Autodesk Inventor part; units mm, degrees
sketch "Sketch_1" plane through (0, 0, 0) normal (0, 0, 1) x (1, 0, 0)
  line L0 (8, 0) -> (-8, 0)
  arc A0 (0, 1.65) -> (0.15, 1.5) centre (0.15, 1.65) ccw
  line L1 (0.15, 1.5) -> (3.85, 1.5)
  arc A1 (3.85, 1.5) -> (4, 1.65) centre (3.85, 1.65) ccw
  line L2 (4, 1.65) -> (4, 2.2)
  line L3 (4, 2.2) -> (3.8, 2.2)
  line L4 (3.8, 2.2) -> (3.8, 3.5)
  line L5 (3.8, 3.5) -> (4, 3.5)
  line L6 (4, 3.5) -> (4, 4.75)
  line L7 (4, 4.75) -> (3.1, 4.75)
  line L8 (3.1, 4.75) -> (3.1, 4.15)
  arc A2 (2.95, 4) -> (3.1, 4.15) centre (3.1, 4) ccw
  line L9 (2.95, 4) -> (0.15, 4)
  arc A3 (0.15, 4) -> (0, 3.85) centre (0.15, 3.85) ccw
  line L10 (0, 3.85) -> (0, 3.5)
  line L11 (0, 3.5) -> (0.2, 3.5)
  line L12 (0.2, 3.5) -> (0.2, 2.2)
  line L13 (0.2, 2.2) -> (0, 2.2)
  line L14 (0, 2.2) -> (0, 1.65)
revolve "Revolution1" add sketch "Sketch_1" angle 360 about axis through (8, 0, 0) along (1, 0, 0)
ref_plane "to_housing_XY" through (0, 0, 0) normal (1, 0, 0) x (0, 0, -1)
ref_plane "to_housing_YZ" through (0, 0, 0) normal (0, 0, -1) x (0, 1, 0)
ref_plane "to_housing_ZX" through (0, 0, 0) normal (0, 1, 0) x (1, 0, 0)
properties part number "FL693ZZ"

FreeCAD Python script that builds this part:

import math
import FreeCAD as App
import Part
import Sketcher
Q = App.Units.Quantity

doc = App.newDocument("Part")
params = doc.addObject("Spreadsheet::Sheet", "Params")
for row, (alias, value) in enumerate([
    ("sketch1_radius", "0.15 mm"),
    ("sketch1_width", "3.7 mm"),
    ("sketch1_width2", "0.2 mm"),
    ("sketch1_width3", "0.9 mm"),
    ("sketch1_height", "1.3 mm"),
    ("revolution_angle", "360 deg"),
], start=1):
    params.set(f"A{row}", alias)
    params.set(f"B{row}", "=" + value)
    params.setAlias(f"B{row}", alias)

body = doc.addObject("PartDesign::Body", "Body")

# Sketch on XY plane
sketch1 = doc.addObject("Sketcher::SketchObject", "Sketch")
body.addObject(sketch1)
sketch1.AttachmentSupport = (doc.XY_Plane, [""])
sketch1.MapMode = "FlatFace"
sketch1.addGeometry(Part.LineSegment(App.Vector(0, 2.2, 0), App.Vector(0, 1.65, 0)), False)
sketch1.addGeometry(Part.ArcOfCircle(Part.Circle(App.Vector(0.15, 1.65, 0), App.Vector(0, 0, 1), 0.15), math.radians(180), math.radians(270)), False)
sketch1.addGeometry(Part.LineSegment(App.Vector(0.15, 1.5, 0), App.Vector(3.85, 1.5, 0)), False)
sketch1.addGeometry(Part.ArcOfCircle(Part.Circle(App.Vector(3.85, 1.65, 0), App.Vector(0, 0, 1), 0.15), math.radians(-90), math.radians(0)), False)
sketch1.addGeometry(Part.LineSegment(App.Vector(4, 1.65, 0), App.Vector(4, 2.2, 0)), False)
sketch1.addGeometry(Part.LineSegment(App.Vector(4, 2.2, 0), App.Vector(3.8, 2.2, 0)), False)
sketch1.addGeometry(Part.LineSegment(App.Vector(3.8, 2.2, 0), App.Vector(3.8, 3.5, 0)), False)
sketch1.addGeometry(Part.LineSegment(App.Vector(3.8, 3.5, 0), App.Vector(4, 3.5, 0)), False)
sketch1.addGeometry(Part.LineSegment(App.Vector(4, 3.5, 0), App.Vector(4, 4.75, 0)), False)
sketch1.addGeometry(Part.LineSegment(App.Vector(4, 4.75, 0), App.Vector(3.1, 4.75, 0)), False)
sketch1.addGeometry(Part.LineSegment(App.Vector(3.1, 4.75, 0), App.Vector(3.1, 4.15, 0)), False)
sketch1.addGeometry(Part.ArcOfCircle(Part.Circle(App.Vector(3.1, 4, 0), App.Vector(0, 0, 1), 0.15), math.radians(180), math.radians(450)), False)
sketch1.addGeometry(Part.LineSegment(App.Vector(2.95, 4, 0), App.Vector(0.15, 4, 0)), False)
sketch1.addGeometry(Part.ArcOfCircle(Part.Circle(App.Vector(0.15, 3.85, 0), App.Vector(0, 0, 1), 0.15), math.radians(90), math.radians(180)), False)
sketch1.addGeometry(Part.LineSegment(App.Vector(0, 3.85, 0), App.Vector(0, 3.5, 0)), False)
sketch1.addGeometry(Part.LineSegment(App.Vector(0, 3.5, 0), App.Vector(0.2, 3.5, 0)), False)
sketch1.addGeometry(Part.LineSegment(App.Vector(0.2, 3.5, 0), App.Vector(0.2, 2.2, 0)), False)
sketch1.addGeometry(Part.LineSegment(App.Vector(0.2, 2.2, 0), App.Vector(0, 2.2, 0)), False)
sketch1.addConstraint(Sketcher.Constraint("Tangent", 0, 2, 1, 1))
sketch1.addConstraint(Sketcher.Constraint("Tangent", 1, 2, 2, 1))
sketch1.addConstraint(Sketcher.Constraint("Tangent", 2, 2, 3, 1))
sketch1.addConstraint(Sketcher.Constraint("Tangent", 3, 2, 4, 1))
sketch1.addConstraint(Sketcher.Constraint("Coincident", 4, 2, 5, 1))
sketch1.addConstraint(Sketcher.Constraint("Coincident", 5, 2, 6, 1))
sketch1.addConstraint(Sketcher.Constraint("Coincident", 6, 2, 7, 1))
sketch1.addConstraint(Sketcher.Constraint("Coincident", 7, 2, 8, 1))
sketch1.addConstraint(Sketcher.Constraint("Coincident", 8, 2, 9, 1))
sketch1.addConstraint(Sketcher.Constraint("Coincident", 9, 2, 10, 1))
sketch1.addConstraint(Sketcher.Constraint("Coincident", 10, 2, 11, 2))
sketch1.addConstraint(Sketcher.Constraint("Coincident", 11, 1, 12, 1))
sketch1.addConstraint(Sketcher.Constraint("Tangent", 12, 2, 13, 1))
sketch1.addConstraint(Sketcher.Constraint("Tangent", 13, 2, 14, 1))
sketch1.addConstraint(Sketcher.Constraint("Coincident", 14, 2, 15, 1))
sketch1.addConstraint(Sketcher.Constraint("Coincident", 15, 2, 16, 1))
sketch1.addConstraint(Sketcher.Constraint("Coincident", 16, 2, 17, 1))
sketch1.addConstraint(Sketcher.Constraint("Coincident", 17, 2, 0, 1))
sketch1.addConstraint(Sketcher.Constraint("Vertical", 0))
sketch1.addConstraint(Sketcher.Constraint("Horizontal", 2))
sketch1.addConstraint(Sketcher.Constraint("Vertical", 4))
sketch1.addConstraint(Sketcher.Constraint("Horizontal", 5))
sketch1.addConstraint(Sketcher.Constraint("Vertical", 6))
sketch1.addConstraint(Sketcher.Constraint("Horizontal", 7))
sketch1.addConstraint(Sketcher.Constraint("Vertical", 8))
sketch1.addConstraint(Sketcher.Constraint("Horizontal", 9))
sketch1.addConstraint(Sketcher.Constraint("Vertical", 10))
sketch1.addConstraint(Sketcher.Constraint("Horizontal", 12))
sketch1.addConstraint(Sketcher.Constraint("Vertical", 14))
sketch1.addConstraint(Sketcher.Constraint("Horizontal", 15))
sketch1.addConstraint(Sketcher.Constraint("Vertical", 16))
sketch1.addConstraint(Sketcher.Constraint("Horizontal", 17))
sketch1.addConstraint(Sketcher.Constraint("Equal", 1, 3))
sketch1.addConstraint(Sketcher.Constraint("Equal", 3, 11))
sketch1.addConstraint(Sketcher.Constraint("Equal", 11, 13))
sketch1.addConstraint(Sketcher.Constraint("PointOnObject", 0, 2, -2))
sketch1.addConstraint(Sketcher.Constraint("PointOnObject", 13, 2, -2))
sketch1.addConstraint(Sketcher.Constraint("Horizontal", 7, 2, 14, 2))
sketch1.addConstraint(Sketcher.Constraint("Horizontal", 5, 2, 16, 2))
sketch1.addConstraint(Sketcher.Constraint("Vertical", 4, 2, 7, 2))
sketch1.addConstraint(Sketcher.Constraint("Vertical", 11, 3, 9, 2))
sketch1.addConstraint(Sketcher.Constraint("Equal", 7, 15))
sketch1.addConstraint(Sketcher.Constraint("Radius", 1, Q("0.15 mm")))
sketch1.addConstraint(Sketcher.Constraint("DistanceX", 2, 1, 2, 2, Q("3.7 mm")))
sketch1.addConstraint(Sketcher.Constraint("DistanceX", 5, 2, 5, 1, Q("0.2 mm")))
sketch1.addConstraint(Sketcher.Constraint("DistanceX", 9, 2, 9, 1, Q("0.9 mm")))
sketch1.addConstraint(Sketcher.Constraint("DistanceY", 6, 1, 6, 2, Q("1.3 mm")))
sketch1.addConstraint(Sketcher.Constraint("DistanceY", 10, 2, 10, 1, Q("0.6 mm")))
sketch1.addConstraint(Sketcher.Constraint("DistanceY", -1, 1, 11, 3, Q("4 mm")))
sketch1.addConstraint(Sketcher.Constraint("DistanceY", -1, 1, 11, 1, Q("4 mm")))
sketch1.addConstraint(Sketcher.Constraint("DistanceY", 0, 2, 0, 1, Q("0.55 mm")))
sketch1.addConstraint(Sketcher.Constraint("DistanceY", 8, 1, 8, 2, Q("1.25 mm")))
sketch1.setExpression("Constraints[42]", "Params.sketch1_radius")
sketch1.setExpression("Constraints[43]", "Params.sketch1_width")
sketch1.setExpression("Constraints[44]", "Params.sketch1_width2")
sketch1.setExpression("Constraints[45]", "Params.sketch1_width3")
sketch1.setExpression("Constraints[46]", "Params.sketch1_height")
revolution = doc.addObject("PartDesign::Revolution", "Revolution")
body.addObject(revolution)
revolution.Profile = sketch1
revolution.ReferenceAxis = (sketch1, ["H_Axis"])
revolution.setExpression("Angle", "Params.revolution_angle")

doc.recompute()
